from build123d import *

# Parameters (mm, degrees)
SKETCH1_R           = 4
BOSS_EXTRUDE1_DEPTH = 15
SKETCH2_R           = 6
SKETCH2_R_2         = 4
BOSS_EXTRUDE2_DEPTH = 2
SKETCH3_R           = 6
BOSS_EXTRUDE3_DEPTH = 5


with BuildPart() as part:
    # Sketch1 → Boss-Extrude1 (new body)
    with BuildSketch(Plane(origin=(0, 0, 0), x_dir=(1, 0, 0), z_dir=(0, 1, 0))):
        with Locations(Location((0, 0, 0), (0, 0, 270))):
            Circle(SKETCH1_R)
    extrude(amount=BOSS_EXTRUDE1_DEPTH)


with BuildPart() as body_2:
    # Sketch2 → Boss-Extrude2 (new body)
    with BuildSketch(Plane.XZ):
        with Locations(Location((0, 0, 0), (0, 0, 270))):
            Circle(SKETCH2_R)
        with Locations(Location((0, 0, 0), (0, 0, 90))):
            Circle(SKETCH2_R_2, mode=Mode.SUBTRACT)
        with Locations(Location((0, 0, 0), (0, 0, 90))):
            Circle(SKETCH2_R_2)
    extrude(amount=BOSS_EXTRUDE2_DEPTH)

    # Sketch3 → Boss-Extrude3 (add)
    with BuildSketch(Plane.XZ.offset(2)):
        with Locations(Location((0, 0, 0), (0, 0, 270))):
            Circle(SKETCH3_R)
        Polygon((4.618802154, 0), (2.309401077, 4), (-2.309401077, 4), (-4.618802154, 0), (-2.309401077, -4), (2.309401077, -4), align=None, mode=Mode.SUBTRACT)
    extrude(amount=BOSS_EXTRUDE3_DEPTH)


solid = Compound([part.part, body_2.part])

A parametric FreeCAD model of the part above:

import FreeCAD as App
import Part
import Sketcher

V = App.Vector
Q = App.Units.Quantity

doc = App.newDocument("Part")
params = doc.addObject("Spreadsheet::Sheet", "Params")
for row, (alias, value) in enumerate([
    ("sketch1_diameter", "8 mm"),
    ("pad1_length", "15 mm"),
    ("sketch2_diameter", "12 mm"),
    ("pad2_length", "2 mm"),
    ("sketch3_diameter", "12 mm"),
    ("pad3_length", "5 mm"),
], start=1):
    params.set(f"A{row}", alias)
    params.set(f"B{row}", "=" + value)
    params.setAlias(f"B{row}", alias)

body = doc.addObject("PartDesign::Body", "Body")

# Sketch on XZ plane
sketch1 = body.newObject("Sketcher::SketchObject", "Sketch")
sketch1.AttachmentSupport = (doc.getObject("XZ_Plane"), [""])
sketch1.MapMode = "FlatFace"
sketch1.addGeometry(Part.Circle(V(0, 0, 0), V(0, 0, 1), 4), False)
sketch1.addConstraint([
    Sketcher.Constraint("Coincident", 0, 3, -1, 1),
    Sketcher.Constraint("Diameter", 0, 8.0),
])
sketch1.setExpression("Constraints[1]", "Params.sketch1_diameter")
pad1 = body.newObject("PartDesign::Pad", "Pad")
pad1.Profile = sketch1
pad1.setExpression("Length", "Params.pad1_length")
pad1.Reversed = True
body2 = doc.addObject("PartDesign::Body", "Body001")

# Sketch on XZ plane
sketch2 = body2.newObject("Sketcher::SketchObject", "Sketch001")
sketch2.AttachmentSupport = (doc.getObject("XZ_Plane001"), [""])
sketch2.MapMode = "FlatFace"
sketch2.addGeometry(Part.Circle(V(0, 0, 0), V(0, 0, 1), 6), False)
sketch2.addConstraint([
    Sketcher.Constraint("Coincident", 0, 3, -1, 1),
    Sketcher.Constraint("Diameter", 0, 12.0),
])
sketch2.setExpression("Constraints[1]", "Params.sketch2_diameter")
pad2 = body2.newObject("PartDesign::Pad", "Pad001")
pad2.Profile = sketch2
pad2.setExpression("Length", "Params.pad2_length")

# Sketch on XZ plane
sketch3 = body2.newObject("Sketcher::SketchObject", "Sketch002")
sketch3.AttachmentSupport = (doc.getObject("XZ_Plane001"), [""])
sketch3.MapMode = "FlatFace"
sketch3.AttachmentOffset = App.Placement(V(0, 0, 2), App.Rotation())
sketch3.addGeometry([
    Part.Circle(V(0, 0, 0), V(0, 0, 1), 6),  # 0
    Part.LineSegment(V(2.309401, 4, 0), V(4.618802, 0, 0)),  # 1
    Part.LineSegment(V(4.618802, 0, 0), V(2.309401, -4, 0)),  # 2
    Part.LineSegment(V(2.309401, -4, 0), V(-2.309401, -4, 0)),  # 3
    Part.LineSegment(V(-2.309401, -4, 0), V(-4.618802, 0, 0)),  # 4
    Part.LineSegment(V(-4.618802, 0, 0), V(-2.309401, 4, 0)),  # 5
    Part.LineSegment(V(-2.309401, 4, 0), V(2.309401, 4, 0)),  # 6
], False)
sketch3.addConstraint([
    Sketcher.Constraint("Coincident", 1, 2, 2, 1),
    Sketcher.Constraint("Coincident", 2, 2, 3, 1),
    Sketcher.Constraint("Coincident", 3, 2, 4, 1),
    Sketcher.Constraint("Coincident", 4, 2, 5, 1),
    Sketcher.Constraint("Coincident", 5, 2, 6, 1),
    Sketcher.Constraint("Coincident", 6, 2, 1, 1),
    Sketcher.Constraint("Horizontal", 3),
    Sketcher.Constraint("Horizontal", 6),
    Sketcher.Constraint("Coincident", 0, 3, -1, 1),
    Sketcher.Constraint("Symmetric", 1, 2, 4, 2, -1, 1),
    Sketcher.Constraint("Symmetric", 2, 2, 5, 2, -1, 1),
    Sketcher.Constraint("PointOnObject", 1, 2, -1),
    Sketcher.Constraint("Parallel", 1, 4),
    Sketcher.Constraint("Vertical", 3, 2, 5, 2),
    Sketcher.Constraint("Diameter", 0, 12.0),
    Sketcher.Constraint("Angle", 1, Q("-60 deg")),
    Sketcher.Constraint("DistanceY", 2, 2, -1, 1, 4.0),
    Sketcher.Constraint("DistanceX", -1, 1, 2, 2, 2.309401),
])
sketch3.setExpression("Constraints[14]", "Params.sketch3_diameter")
pad3 = body2.newObject("PartDesign::Pad", "Pad002")
pad3.Profile = sketch3
pad3.setExpression("Length", "Params.pad3_length")

doc.recompute()
